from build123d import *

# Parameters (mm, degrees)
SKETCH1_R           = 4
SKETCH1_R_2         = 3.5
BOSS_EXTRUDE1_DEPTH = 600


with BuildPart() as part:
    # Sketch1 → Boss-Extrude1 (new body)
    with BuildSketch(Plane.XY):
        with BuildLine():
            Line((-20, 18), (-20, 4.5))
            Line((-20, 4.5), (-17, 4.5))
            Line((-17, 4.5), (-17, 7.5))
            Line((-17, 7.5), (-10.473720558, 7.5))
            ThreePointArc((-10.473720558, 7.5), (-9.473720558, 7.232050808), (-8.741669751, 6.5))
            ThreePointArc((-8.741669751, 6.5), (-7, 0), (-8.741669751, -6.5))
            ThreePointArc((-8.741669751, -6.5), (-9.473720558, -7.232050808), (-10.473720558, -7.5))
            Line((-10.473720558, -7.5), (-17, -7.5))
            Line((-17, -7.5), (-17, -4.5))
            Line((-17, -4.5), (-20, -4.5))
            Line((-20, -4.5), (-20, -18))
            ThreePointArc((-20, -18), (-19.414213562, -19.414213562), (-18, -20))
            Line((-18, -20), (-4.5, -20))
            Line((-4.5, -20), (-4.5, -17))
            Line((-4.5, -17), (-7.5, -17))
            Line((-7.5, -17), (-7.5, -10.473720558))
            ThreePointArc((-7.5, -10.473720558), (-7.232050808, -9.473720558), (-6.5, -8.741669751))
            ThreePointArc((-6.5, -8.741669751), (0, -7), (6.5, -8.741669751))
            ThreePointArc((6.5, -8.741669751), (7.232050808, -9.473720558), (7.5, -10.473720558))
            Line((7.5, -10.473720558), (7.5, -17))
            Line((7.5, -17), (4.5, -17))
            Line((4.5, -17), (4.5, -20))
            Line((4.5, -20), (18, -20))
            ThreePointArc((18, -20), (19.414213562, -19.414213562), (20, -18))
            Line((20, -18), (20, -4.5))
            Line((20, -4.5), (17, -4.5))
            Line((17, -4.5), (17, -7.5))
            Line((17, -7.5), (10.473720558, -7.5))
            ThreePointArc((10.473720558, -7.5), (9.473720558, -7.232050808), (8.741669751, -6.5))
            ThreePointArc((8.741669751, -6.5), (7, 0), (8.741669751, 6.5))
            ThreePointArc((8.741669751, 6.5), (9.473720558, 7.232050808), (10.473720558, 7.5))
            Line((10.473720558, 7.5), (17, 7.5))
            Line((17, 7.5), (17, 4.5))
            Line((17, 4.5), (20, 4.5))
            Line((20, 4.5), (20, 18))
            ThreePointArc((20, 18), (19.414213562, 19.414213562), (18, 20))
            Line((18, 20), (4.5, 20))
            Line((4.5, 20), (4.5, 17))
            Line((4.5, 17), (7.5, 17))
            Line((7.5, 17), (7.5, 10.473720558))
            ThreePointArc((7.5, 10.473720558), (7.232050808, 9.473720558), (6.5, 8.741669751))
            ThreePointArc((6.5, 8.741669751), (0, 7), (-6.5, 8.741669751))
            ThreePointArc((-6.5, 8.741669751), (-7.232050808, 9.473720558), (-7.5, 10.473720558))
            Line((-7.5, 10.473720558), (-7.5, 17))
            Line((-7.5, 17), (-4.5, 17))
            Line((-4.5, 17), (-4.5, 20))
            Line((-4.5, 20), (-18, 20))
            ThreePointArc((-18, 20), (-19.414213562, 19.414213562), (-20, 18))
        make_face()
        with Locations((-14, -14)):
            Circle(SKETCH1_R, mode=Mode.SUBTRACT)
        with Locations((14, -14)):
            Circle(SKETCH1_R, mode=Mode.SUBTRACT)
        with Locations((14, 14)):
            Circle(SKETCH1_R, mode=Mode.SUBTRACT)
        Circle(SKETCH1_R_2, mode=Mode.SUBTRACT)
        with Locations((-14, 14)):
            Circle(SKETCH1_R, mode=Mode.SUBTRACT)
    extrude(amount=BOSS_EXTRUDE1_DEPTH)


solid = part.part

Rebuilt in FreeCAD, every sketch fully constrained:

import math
import FreeCAD as App
import Part
import Sketcher
from FreeCAD import Vector
Q = App.Units.Quantity

doc = App.newDocument("Part")
params = doc.addObject("Spreadsheet::Sheet", "Params")
for row, (alias, value) in enumerate([
    ("sketch1_diameter", "8 mm"),
    ("sketch1_diameter2", "7 mm"),
    ("sketch1_radius", "2 mm"),
    ("sketch1_radius2", "13 mm"),
    ("sketch1_width", "3 mm"),
    ("pad1_length", "600 mm"),
], start=1):
    params.set(f"A{row}", alias)
    params.set(f"B{row}", "=" + value)
    params.setAlias(f"B{row}", alias)

body = doc.addObject("PartDesign::Body", "Body")

sketch1 = body.newObject("Sketcher::SketchObject", "Sketch")
sketch1.AttachmentSupport = (doc.getObject("XY_Plane"), [""])
sketch1.MapMode = "FlatFace"
sketch1.addGeometry([
    Part.LineSegment(Vector(-20, 18, 0), Vector(-20, 4.5, 0)),
    Part.LineSegment(Vector(-20, 4.5, 0), Vector(-17, 4.5, 0)),
    Part.LineSegment(Vector(-17, 4.5, 0), Vector(-17, 7.5, 0)),
    Part.LineSegment(Vector(-17, 7.5, 0), Vector(-10.5, 7.5, 0)),
    Part.ArcOfCircle(Part.Circle(Vector(-10.5, 5.5, 0), Vector(0, 0, 1), 2), math.radians(30), math.radians(90)),
    Part.ArcOfCircle(Part.Circle(Vector(-20, 0, 0), Vector(0, 0, 1), 13), math.radians(-30), math.radians(30)),
    Part.ArcOfCircle(Part.Circle(Vector(-10.5, -5.5, 0), Vector(0, 0, 1), 2), math.radians(-90), math.radians(-30)),
    Part.LineSegment(Vector(-10.5, -7.5, 0), Vector(-17, -7.5, 0)),
    Part.LineSegment(Vector(-17, -7.5, 0), Vector(-17, -4.5, 0)),
    Part.LineSegment(Vector(-17, -4.5, 0), Vector(-20, -4.5, 0)),
    Part.LineSegment(Vector(-20, -4.5, 0), Vector(-20, -18, 0)),
    Part.ArcOfCircle(Part.Circle(Vector(-18, -18, 0), Vector(0, 0, 1), 2), math.radians(-180), math.radians(-90)),
    Part.LineSegment(Vector(-18, -20, 0), Vector(-4.5, -20, 0)),
    Part.LineSegment(Vector(-4.5, -20, 0), Vector(-4.5, -17, 0)),
    Part.LineSegment(Vector(-4.5, -17, 0), Vector(-7.5, -17, 0)),
    Part.LineSegment(Vector(-7.5, -17, 0), Vector(-7.5, -10.5, 0)),
    Part.ArcOfCircle(Part.Circle(Vector(-5.5, -10.5, 0), Vector(0, 0, 1), 2), math.radians(120), math.radians(180)),
    Part.ArcOfCircle(Part.Circle(Vector(0, -20, 0), Vector(0, 0, 1), 13), math.radians(60), math.radians(120)),
    Part.ArcOfCircle(Part.Circle(Vector(5.5, -10.5, 0), Vector(0, 0, 1), 2), math.radians(0), math.radians(60)),
    Part.LineSegment(Vector(7.5, -10.5, 0), Vector(7.5, -17, 0)),
    Part.LineSegment(Vector(7.5, -17, 0), Vector(4.5, -17, 0)),
    Part.LineSegment(Vector(4.5, -17, 0), Vector(4.5, -20, 0)),
    Part.LineSegment(Vector(4.5, -20, 0), Vector(18, -20, 0)),
    Part.ArcOfCircle(Part.Circle(Vector(18, -18, 0), Vector(0, 0, 1), 2), math.radians(-90), math.radians(0)),
    Part.LineSegment(Vector(20, -18, 0), Vector(20, -4.5, 0)),
    Part.LineSegment(Vector(20, -4.5, 0), Vector(17, -4.5, 0)),
    Part.LineSegment(Vector(17, -4.5, 0), Vector(17, -7.5, 0)),
    Part.LineSegment(Vector(17, -7.5, 0), Vector(10.5, -7.5, 0)),
    Part.ArcOfCircle(Part.Circle(Vector(10.5, -5.5, 0), Vector(0, 0, 1), 2), math.radians(-150), math.radians(-90)),
    Part.ArcOfCircle(Part.Circle(Vector(20, 0, 0), Vector(0, 0, 1), 13), math.radians(150), math.radians(210)),
    Part.ArcOfCircle(Part.Circle(Vector(10.5, 5.5, 0), Vector(0, 0, 1), 2), math.radians(90), math.radians(150)),
    Part.LineSegment(Vector(10.5, 7.5, 0), Vector(17, 7.5, 0)),
    Part.LineSegment(Vector(17, 7.5, 0), Vector(17, 4.5, 0)),
    Part.LineSegment(Vector(17, 4.5, 0), Vector(20, 4.5, 0)),
    Part.LineSegment(Vector(20, 4.5, 0), Vector(20, 18, 0)),
    Part.ArcOfCircle(Part.Circle(Vector(18, 18, 0), Vector(0, 0, 1), 2), math.radians(0), math.radians(90)),
    Part.LineSegment(Vector(18, 20, 0), Vector(4.5, 20, 0)),
    Part.LineSegment(Vector(4.5, 20, 0), Vector(4.5, 17, 0)),
    Part.LineSegment(Vector(4.5, 17, 0), Vector(7.5, 17, 0)),
    Part.LineSegment(Vector(7.5, 17, 0), Vector(7.5, 10.5, 0)),
    Part.ArcOfCircle(Part.Circle(Vector(5.5, 10.5, 0), Vector(0, 0, 1), 2), math.radians(-60), math.radians(0)),
    Part.ArcOfCircle(Part.Circle(Vector(0, 20, 0), Vector(0, 0, 1), 13), math.radians(-120), math.radians(-60)),
    Part.ArcOfCircle(Part.Circle(Vector(-5.5, 10.5, 0), Vector(0, 0, 1), 2), math.radians(180), math.radians(240)),
    Part.LineSegment(Vector(-7.5, 10.5, 0), Vector(-7.5, 17, 0)),
    Part.LineSegment(Vector(-7.5, 17, 0), Vector(-4.5, 17, 0)),
    Part.LineSegment(Vector(-4.5, 17, 0), Vector(-4.5, 20, 0)),
    Part.LineSegment(Vector(-4.5, 20, 0), Vector(-18, 20, 0)),
    Part.ArcOfCircle(Part.Circle(Vector(-18, 18, 0), Vector(0, 0, 1), 2), math.radians(90), math.radians(180)),
    Part.Circle(Vector(-14, -14, 0), Vector(0, 0, 1), 4),
    Part.Circle(Vector(14, -14, 0), Vector(0, 0, 1), 4),
    Part.Circle(Vector(-14, 14, 0), Vector(0, 0, 1), 4),
    Part.Circle(Vector(0, 0, 0), Vector(0, 0, 1), 3.5),
    Part.Circle(Vector(14, 14, 0), Vector(0, 0, 1), 4),
], False)
sketch1.addConstraint([
    Sketcher.Constraint("Coincident", 0, 2, 1, 1),
    Sketcher.Constraint("Coincident", 1, 2, 2, 1),
    Sketcher.Constraint("Coincident", 2, 2, 3, 1),
    Sketcher.Constraint("Tangent", 3, 2, 4, 2),
    Sketcher.Constraint("Tangent", 4, 1, 5, 2),
    Sketcher.Constraint("Tangent", 5, 1, 6, 2),
    Sketcher.Constraint("Tangent", 6, 1, 7, 1),
    Sketcher.Constraint("Coincident", 7, 2, 8, 1),
    Sketcher.Constraint("Coincident", 8, 2, 9, 1),
    Sketcher.Constraint("Coincident", 9, 2, 10, 1),
    Sketcher.Constraint("Tangent", 10, 2, 11, 1),
    Sketcher.Constraint("Tangent", 11, 2, 12, 1),
    Sketcher.Constraint("Coincident", 12, 2, 13, 1),
    Sketcher.Constraint("Coincident", 13, 2, 14, 1),
    Sketcher.Constraint("Coincident", 14, 2, 15, 1),
    Sketcher.Constraint("Tangent", 15, 2, 16, 2),
    Sketcher.Constraint("Tangent", 16, 1, 17, 2),
    Sketcher.Constraint("Tangent", 17, 1, 18, 2),
    Sketcher.Constraint("Tangent", 18, 1, 19, 1),
    Sketcher.Constraint("Coincident", 19, 2, 20, 1),
    Sketcher.Constraint("Coincident", 20, 2, 21, 1),
    Sketcher.Constraint("Coincident", 21, 2, 22, 1),
    Sketcher.Constraint("Tangent", 22, 2, 23, 1),
    Sketcher.Constraint("Tangent", 23, 2, 24, 1),
    Sketcher.Constraint("Coincident", 24, 2, 25, 1),
    Sketcher.Constraint("Coincident", 25, 2, 26, 1),
    Sketcher.Constraint("Coincident", 26, 2, 27, 1),
    Sketcher.Constraint("Tangent", 27, 2, 28, 2),
    Sketcher.Constraint("Tangent", 28, 1, 29, 2),
    Sketcher.Constraint("Tangent", 29, 1, 30, 2),
    Sketcher.Constraint("Tangent", 30, 1, 31, 1),
    Sketcher.Constraint("Coincident", 31, 2, 32, 1),
    Sketcher.Constraint("Coincident", 32, 2, 33, 1),
    Sketcher.Constraint("Coincident", 33, 2, 34, 1),
    Sketcher.Constraint("Tangent", 34, 2, 35, 1),
    Sketcher.Constraint("Tangent", 35, 2, 36, 1),
    Sketcher.Constraint("Coincident", 36, 2, 37, 1),
    Sketcher.Constraint("Coincident", 37, 2, 38, 1),
    Sketcher.Constraint("Coincident", 38, 2, 39, 1),
    Sketcher.Constraint("Tangent", 39, 2, 40, 2),
    Sketcher.Constraint("Tangent", 40, 1, 41, 2),
    Sketcher.Constraint("Tangent", 41, 1, 42, 2),
    Sketcher.Constraint("Tangent", 42, 1, 43, 1),
    Sketcher.Constraint("Coincident", 43, 2, 44, 1),
    Sketcher.Constraint("Coincident", 44, 2, 45, 1),
    Sketcher.Constraint("Coincident", 45, 2, 46, 1),
    Sketcher.Constraint("Tangent", 46, 2, 47, 1),
    Sketcher.Constraint("Tangent", 47, 2, 0, 1),
    Sketcher.Constraint("Vertical", 0),
    Sketcher.Constraint("Horizontal", 1),
    Sketcher.Constraint("Vertical", 2),
    Sketcher.Constraint("Horizontal", 3),
    Sketcher.Constraint("Horizontal", 7),
    Sketcher.Constraint("Vertical", 8),
    Sketcher.Constraint("Horizontal", 9),
    Sketcher.Constraint("Vertical", 10),
    Sketcher.Constraint("Horizontal", 12),
    Sketcher.Constraint("Vertical", 13),
    Sketcher.Constraint("Horizontal", 14),
    Sketcher.Constraint("Vertical", 15),
    Sketcher.Constraint("Vertical", 19),
    Sketcher.Constraint("Horizontal", 20),
    Sketcher.Constraint("Vertical", 21),
    Sketcher.Constraint("Horizontal", 22),
    Sketcher.Constraint("Vertical", 24),
    Sketcher.Constraint("Horizontal", 25),
    Sketcher.Constraint("Vertical", 26),
    Sketcher.Constraint("Horizontal", 27),
    Sketcher.Constraint("Horizontal", 31),
    Sketcher.Constraint("Vertical", 32),
    Sketcher.Constraint("Horizontal", 33),
    Sketcher.Constraint("Vertical", 34),
    Sketcher.Constraint("Horizontal", 36),
    Sketcher.Constraint("Vertical", 37),
    Sketcher.Constraint("Horizontal", 38),
    Sketcher.Constraint("Vertical", 39),
    Sketcher.Constraint("Vertical", 43),
    Sketcher.Constraint("Horizontal", 44),
    Sketcher.Constraint("Vertical", 45),
    Sketcher.Constraint("Horizontal", 46),
    Sketcher.Constraint("Coincident", 51, 3, -1, 1),
    Sketcher.Constraint("Equal", 4, 6),
    Sketcher.Constraint("Equal", 6, 11),
    Sketcher.Constraint("Equal", 11, 16),
    Sketcher.Constraint("Equal", 5, 17),
    Sketcher.Constraint("Equal", 16, 18),
    Sketcher.Constraint("Equal", 18, 23),
    Sketcher.Constraint("Equal", 23, 28),
    Sketcher.Constraint("Equal", 17, 29),
    Sketcher.Constraint("Equal", 28, 30),
    Sketcher.Constraint("Equal", 30, 35),
    Sketcher.Constraint("Equal", 35, 40),
    Sketcher.Constraint("Equal", 29, 41),
    Sketcher.Constraint("Equal", 40, 42),
    Sketcher.Constraint("Equal", 42, 47),
    Sketcher.Constraint("Equal", 48, 49),
    Sketcher.Constraint("Equal", 49, 50),
    Sketcher.Constraint("Equal", 50, 52),
    Sketcher.Constraint("Symmetric", 4, 3, 28, 3, -1, 1),
    Sketcher.Constraint("Symmetric", 6, 3, 30, 3, -1, 1),
    Sketcher.Constraint("Symmetric", 11, 3, 35, 3, -1, 1),
    Sketcher.Constraint("Symmetric", 16, 3, 40, 3, -1, 1),
    Sketcher.Constraint("Symmetric", 18, 3, 42, 3, -1, 1),
    Sketcher.Constraint("Symmetric", 23, 3, 47, 3, -1, 1),
    Sketcher.Constraint("Symmetric", 49, 3, 50, 3, -1, 1),
    Sketcher.Constraint("Symmetric", 48, 3, 52, 3, -1, 1),
    Sketcher.Constraint("Symmetric", 1, 2, 25, 2, -1, 1),
    Sketcher.Constraint("Symmetric", 8, 2, 32, 2, -1, 1),
    Sketcher.Constraint("Symmetric", 13, 2, 37, 2, -1, 1),
    Sketcher.Constraint("Symmetric", 20, 2, 44, 2, -1, 1),
    Sketcher.Constraint("Symmetric", 16, 3, 18, 3, -2),
    Sketcher.Constraint("Symmetric", 11, 3, 23, 3, -2),
    Sketcher.Constraint("Symmetric", 6, 3, 28, 3, -2),
    Sketcher.Constraint("Symmetric", 48, 3, 49, 3, -2),
    Sketcher.Constraint("Symmetric", 13, 2, 20, 2, -2),
    Sketcher.Constraint("Symmetric", 8, 2, 25, 2, -2),
    Sketcher.Constraint("Horizontal", 17, 3, 11, 2),
    Sketcher.Constraint("Vertical", 5, 3, 0, 2),
    Sketcher.Constraint("Equal", 9, 14),
    Sketcher.Constraint("Equal", 46, 0),
    Sketcher.Constraint("Equal", 44, 2),
    Sketcher.Constraint("Equal", 8, 13),
    Sketcher.Constraint("Equal", 31, 15),
    Sketcher.Constraint("Diameter", 48, Q("8 mm")),
    Sketcher.Constraint("Diameter", 51, Q("7 mm")),
    Sketcher.Constraint("Radius", 4, Q("2 mm")),
    Sketcher.Constraint("Radius", 5, Q("13 mm")),
    Sketcher.Constraint("DistanceX", 1, 1, 1, 2, Q("3 mm")),
    Sketcher.Constraint("DistanceX", 12, 1, 12, 2, Q("13.5 mm")),
    Sketcher.Constraint("DistanceX", 5, 3, -1, 1, Q("20 mm")),
    Sketcher.Constraint("DistanceX", 48, 3, -1, 1, Q("14 mm")),
    Sketcher.Constraint("DistanceY", 48, 3, -1, 1, Q("14 mm")),
])
sketch1.setExpression("Constraints[123]", "Params.sketch1_diameter")
sketch1.setExpression("Constraints[124]", "Params.sketch1_diameter2")
sketch1.setExpression("Constraints[125]", "Params.sketch1_radius")
sketch1.setExpression("Constraints[126]", "Params.sketch1_radius2")
sketch1.setExpression("Constraints[127]", "Params.sketch1_width")
pad1 = body.newObject("PartDesign::Pad", "Pad")
pad1.Profile = sketch1
pad1.setExpression("Length", "Params.pad1_length")

doc.recompute()
